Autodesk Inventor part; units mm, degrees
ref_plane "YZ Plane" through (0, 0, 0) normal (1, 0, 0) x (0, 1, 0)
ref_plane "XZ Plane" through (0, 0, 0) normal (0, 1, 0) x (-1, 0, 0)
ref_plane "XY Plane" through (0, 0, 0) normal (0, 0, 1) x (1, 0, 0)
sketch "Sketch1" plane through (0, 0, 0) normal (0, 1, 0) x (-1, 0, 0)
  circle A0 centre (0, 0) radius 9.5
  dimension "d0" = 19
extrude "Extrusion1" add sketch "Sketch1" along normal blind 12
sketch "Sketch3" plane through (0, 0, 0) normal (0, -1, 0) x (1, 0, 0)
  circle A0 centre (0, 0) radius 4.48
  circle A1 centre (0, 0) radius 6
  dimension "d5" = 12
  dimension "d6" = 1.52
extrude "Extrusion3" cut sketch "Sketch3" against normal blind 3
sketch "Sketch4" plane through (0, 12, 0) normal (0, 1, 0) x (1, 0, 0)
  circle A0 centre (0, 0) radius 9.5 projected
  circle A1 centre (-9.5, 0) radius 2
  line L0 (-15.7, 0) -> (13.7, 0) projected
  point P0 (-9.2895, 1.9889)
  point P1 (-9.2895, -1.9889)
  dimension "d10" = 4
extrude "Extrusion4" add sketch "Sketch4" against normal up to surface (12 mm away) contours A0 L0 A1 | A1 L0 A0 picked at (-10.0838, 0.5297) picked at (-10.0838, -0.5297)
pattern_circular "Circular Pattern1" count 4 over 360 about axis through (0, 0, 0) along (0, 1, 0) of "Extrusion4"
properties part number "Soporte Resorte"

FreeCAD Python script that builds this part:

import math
import FreeCAD as App
import Part
import Sketcher
from FreeCAD import Vector
Q = App.Units.Quantity

doc = App.newDocument("Part")
params = doc.addObject("Spreadsheet::Sheet", "Params")
for row, (alias, value) in enumerate([
    ("sketch1_diameter", "19 mm"),
    ("pad1_length", "12 mm"),
    ("sketch2_diameter", "12 mm"),
    ("sketch2_diameter2", "8.96 mm"),
    ("pocket1_length", "3 mm"),
    ("sketch3_radius", "2 mm"),
    ("sketch3_radius2", "9.5 mm"),
    ("pad2_length", "12 mm"),
], start=1):
    params.set(f"A{row}", alias)
    params.set(f"B{row}", "=" + value)
    params.setAlias(f"B{row}", alias)

body = doc.addObject("PartDesign::Body", "Body")

sketch1 = body.newObject("Sketcher::SketchObject", "Sketch")
sketch1.AttachmentSupport = (doc.getObject("XZ_Plane"), [""])
sketch1.MapMode = "FlatFace"
sketch1.addGeometry(Part.Circle(Vector(0, 0, 0), Vector(0, 0, 1), 10), False)
sketch1.addConstraint(Sketcher.Constraint("Coincident", 0, 3, -1, 1))
sketch1.addConstraint(Sketcher.Constraint("Diameter", 0, Q("19 mm")))
sketch1.setExpression("Constraints[1]", "Params.sketch1_diameter")
pad1 = body.newObject("PartDesign::Pad", "Pad")
pad1.Profile = sketch1
pad1.setExpression("Length", "Params.pad1_length")
pad1.Reversed = True

sketch2 = body.newObject("Sketcher::SketchObject", "Sketch001")
sketch2.AttachmentSupport = (doc.getObject("XZ_Plane"), [""])
sketch2.MapMode = "FlatFace"
sketch2.addGeometry(Part.Circle(Vector(0, 0, 0), Vector(0, 0, 1), 6), False)
sketch2.addGeometry(Part.Circle(Vector(0, 0, 0), Vector(0, 0, 1), 4.5), False)
sketch2.addConstraint(Sketcher.Constraint("Coincident", 0, 3, -1, 1))
sketch2.addConstraint(Sketcher.Constraint("Coincident", 1, 3, -1, 1))
sketch2.addConstraint(Sketcher.Constraint("Diameter", 0, Q("12 mm")))
sketch2.addConstraint(Sketcher.Constraint("Diameter", 1, Q("8.96 mm")))
sketch2.setExpression("Constraints[2]", "Params.sketch2_diameter")
sketch2.setExpression("Constraints[3]", "Params.sketch2_diameter2")
pocket1 = body.newObject("PartDesign::Pocket", "Pocket")
pocket1.Profile = sketch2
pocket1.setExpression("Length", "Params.pocket1_length")

sketch3 = body.newObject("Sketcher::SketchObject", "Sketch002")
sketch3.AttachmentSupport = (doc.getObject("XZ_Plane"), [""])
sketch3.MapMode = "FlatFace"
sketch3.AttachmentOffset = App.Placement(Vector(0, 0, -12), App.Rotation())
sketch3.addGeometry(Part.ArcOfCircle(Part.Circle(Vector(-9.5, 0, 0), Vector(0, 0, 1), 2), math.radians(84), math.radians(276)), False)
sketch3.addGeometry(Part.ArcOfCircle(Part.Circle(Vector(0, 0, 0), Vector(0, 0, 1), 9.5), math.radians(168), math.radians(192)), False)
sketch3.addConstraint(Sketcher.Constraint("Coincident", 0, 1, 1, 1))
sketch3.addConstraint(Sketcher.Constraint("Coincident", 1, 2, 0, 2))
sketch3.addConstraint(Sketcher.Constraint("Coincident", 1, 3, -1, 1))
sketch3.addConstraint(Sketcher.Constraint("PointOnObject", 0, 3, -1))
sketch3.addConstraint(Sketcher.Constraint("Radius", 0, Q("2 mm")))
sketch3.addConstraint(Sketcher.Constraint("Radius", 1, Q("9.5 mm")))
sketch3.addConstraint(Sketcher.Constraint("DistanceX", 0, 3, -1, 1, Q("9.5 mm")))
sketch3.setExpression("Constraints[4]", "Params.sketch3_radius")
sketch3.setExpression("Constraints[5]", "Params.sketch3_radius2")
pad2 = body.newObject("PartDesign::Pad", "Pad001")
pad2.Profile = sketch3
pad2.setExpression("Length", "Params.pad2_length")
doc.recompute()

polarpattern = body.newObject("PartDesign::PolarPattern", "PolarPattern")
polarpattern.Originals = [pad2]
polarpattern.Axis = (doc.getObject("Y_Axis"), [""])
polarpattern.Angle = 360
polarpattern.Occurrences = 4
body.Tip = polarpattern

doc.recompute()
